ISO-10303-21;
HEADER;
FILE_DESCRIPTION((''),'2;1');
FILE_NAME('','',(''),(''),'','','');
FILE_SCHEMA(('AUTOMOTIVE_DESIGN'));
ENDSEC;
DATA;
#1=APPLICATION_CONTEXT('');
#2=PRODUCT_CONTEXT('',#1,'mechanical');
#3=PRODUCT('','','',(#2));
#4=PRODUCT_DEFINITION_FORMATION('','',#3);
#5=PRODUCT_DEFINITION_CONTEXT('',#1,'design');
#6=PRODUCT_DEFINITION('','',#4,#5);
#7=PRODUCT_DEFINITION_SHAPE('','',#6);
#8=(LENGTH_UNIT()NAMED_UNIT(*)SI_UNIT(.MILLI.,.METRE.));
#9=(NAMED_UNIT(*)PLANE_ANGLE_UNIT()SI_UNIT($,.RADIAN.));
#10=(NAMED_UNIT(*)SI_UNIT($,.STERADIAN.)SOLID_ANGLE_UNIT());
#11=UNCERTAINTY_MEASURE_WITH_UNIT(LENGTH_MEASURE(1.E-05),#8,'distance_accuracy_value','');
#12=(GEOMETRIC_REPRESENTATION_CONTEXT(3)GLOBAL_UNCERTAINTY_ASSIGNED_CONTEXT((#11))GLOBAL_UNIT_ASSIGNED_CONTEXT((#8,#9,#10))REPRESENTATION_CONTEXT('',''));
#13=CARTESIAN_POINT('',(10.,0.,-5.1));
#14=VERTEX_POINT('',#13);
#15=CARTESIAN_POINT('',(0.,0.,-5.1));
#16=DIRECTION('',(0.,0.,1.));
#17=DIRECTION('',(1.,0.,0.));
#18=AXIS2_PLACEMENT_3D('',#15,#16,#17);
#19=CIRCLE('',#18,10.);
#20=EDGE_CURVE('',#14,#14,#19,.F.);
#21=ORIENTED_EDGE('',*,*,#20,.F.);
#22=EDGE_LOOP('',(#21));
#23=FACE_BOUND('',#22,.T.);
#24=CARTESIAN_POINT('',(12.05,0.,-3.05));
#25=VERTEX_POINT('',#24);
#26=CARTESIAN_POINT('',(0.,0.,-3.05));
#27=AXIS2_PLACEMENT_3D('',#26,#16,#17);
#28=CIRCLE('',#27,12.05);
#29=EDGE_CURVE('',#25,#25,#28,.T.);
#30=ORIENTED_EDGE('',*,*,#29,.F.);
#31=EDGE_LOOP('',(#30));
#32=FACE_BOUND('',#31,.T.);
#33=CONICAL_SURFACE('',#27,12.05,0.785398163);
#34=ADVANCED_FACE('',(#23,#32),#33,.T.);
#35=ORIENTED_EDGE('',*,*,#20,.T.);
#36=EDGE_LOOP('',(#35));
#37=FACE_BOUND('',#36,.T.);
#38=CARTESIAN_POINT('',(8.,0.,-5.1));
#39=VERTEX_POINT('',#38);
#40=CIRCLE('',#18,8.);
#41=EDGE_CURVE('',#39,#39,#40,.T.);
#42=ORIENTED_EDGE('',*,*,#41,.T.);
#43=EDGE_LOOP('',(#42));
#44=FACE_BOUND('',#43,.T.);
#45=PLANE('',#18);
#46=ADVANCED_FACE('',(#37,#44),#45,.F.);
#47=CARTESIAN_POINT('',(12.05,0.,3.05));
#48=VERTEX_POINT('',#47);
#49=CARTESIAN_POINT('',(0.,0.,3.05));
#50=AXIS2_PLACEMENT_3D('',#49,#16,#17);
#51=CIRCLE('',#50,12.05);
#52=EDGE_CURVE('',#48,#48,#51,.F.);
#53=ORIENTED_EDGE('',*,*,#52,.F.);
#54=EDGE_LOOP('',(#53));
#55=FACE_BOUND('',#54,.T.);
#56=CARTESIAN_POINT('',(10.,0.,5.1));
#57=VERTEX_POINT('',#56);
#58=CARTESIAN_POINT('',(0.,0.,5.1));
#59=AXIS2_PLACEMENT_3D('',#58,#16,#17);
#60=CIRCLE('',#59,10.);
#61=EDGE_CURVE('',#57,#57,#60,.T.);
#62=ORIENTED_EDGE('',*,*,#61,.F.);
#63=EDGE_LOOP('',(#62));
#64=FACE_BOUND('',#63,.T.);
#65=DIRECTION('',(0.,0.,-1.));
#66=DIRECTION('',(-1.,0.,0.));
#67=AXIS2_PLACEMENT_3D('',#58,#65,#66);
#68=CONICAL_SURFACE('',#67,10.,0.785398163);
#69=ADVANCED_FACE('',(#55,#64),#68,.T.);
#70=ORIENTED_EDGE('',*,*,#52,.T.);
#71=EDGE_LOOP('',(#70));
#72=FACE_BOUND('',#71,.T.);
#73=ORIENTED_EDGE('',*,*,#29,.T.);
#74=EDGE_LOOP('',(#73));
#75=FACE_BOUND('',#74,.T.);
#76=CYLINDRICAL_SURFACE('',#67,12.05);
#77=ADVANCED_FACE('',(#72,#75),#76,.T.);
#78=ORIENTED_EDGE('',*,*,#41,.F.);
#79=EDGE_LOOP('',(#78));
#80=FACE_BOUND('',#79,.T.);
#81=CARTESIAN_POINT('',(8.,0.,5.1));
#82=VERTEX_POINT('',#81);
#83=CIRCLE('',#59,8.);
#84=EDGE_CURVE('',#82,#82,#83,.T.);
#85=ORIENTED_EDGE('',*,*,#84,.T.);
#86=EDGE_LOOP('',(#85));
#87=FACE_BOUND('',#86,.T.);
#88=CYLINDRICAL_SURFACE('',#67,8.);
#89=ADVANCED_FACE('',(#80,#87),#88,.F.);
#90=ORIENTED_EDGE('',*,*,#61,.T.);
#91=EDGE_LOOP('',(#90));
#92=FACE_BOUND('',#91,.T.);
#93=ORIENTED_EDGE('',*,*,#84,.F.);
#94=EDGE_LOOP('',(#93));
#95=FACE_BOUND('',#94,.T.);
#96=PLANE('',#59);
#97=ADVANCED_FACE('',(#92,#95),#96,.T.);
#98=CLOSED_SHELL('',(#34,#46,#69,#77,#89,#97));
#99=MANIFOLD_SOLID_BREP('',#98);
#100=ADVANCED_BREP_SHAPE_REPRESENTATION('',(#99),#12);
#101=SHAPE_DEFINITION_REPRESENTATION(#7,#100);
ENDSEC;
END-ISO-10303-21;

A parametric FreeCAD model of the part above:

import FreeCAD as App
import Part
import Sketcher
from FreeCAD import Vector
Q = App.Units.Quantity


def edges_at(feature, points):
    """Names of the edges that pass closest to the given points."""
    edges = feature.Shape.Edges
    near = lambda p: min(range(len(edges)), key=lambda i: edges[i].distToShape(Part.Vertex(*p))[0])
    return sorted({f"Edge{near(p) + 1}" for p in points})

doc = App.newDocument("Part")
body = doc.addObject("PartDesign::Body", "Body")

# Sketch on XY plane
sketch1 = doc.addObject("Sketcher::SketchObject", "Sketch")
body.addObject(sketch1)
sketch1.AttachmentSupport = (doc.XY_Plane, [""])
sketch1.MapMode = "FlatFace"
sketch1.addGeometry([
    Part.Circle(Vector(0, 0, 0), Vector(0, 0, 1), 12),
    Part.Circle(Vector(0, 0, 0), Vector(0, 0, 1), 8),
], False)
sketch1.addConstraint([
    Sketcher.Constraint("Coincident", 0, 3, -1, 1),
    Sketcher.Constraint("Coincident", 1, 3, -1, 1),
    Sketcher.Constraint("Diameter", 1, Q("16 mm")),
    Sketcher.Constraint("Diameter", 0, Q("24.1 mm")),
])
pad1 = doc.addObject("PartDesign::Pad", "Pad")
body.addObject(pad1)
pad1.Profile = sketch1
pad1.Length = 10.2
pad1.Midplane = True
doc.recompute()

chamfer = doc.addObject("PartDesign::Chamfer", "Chamfer")
body.addObject(chamfer)
chamfer.Base = (pad1, edges_at(pad1, [(-12.05, 0, -5.1), (-12.05, 0, 5.1)]))
chamfer.Size = 2.05

doc.recompute()
